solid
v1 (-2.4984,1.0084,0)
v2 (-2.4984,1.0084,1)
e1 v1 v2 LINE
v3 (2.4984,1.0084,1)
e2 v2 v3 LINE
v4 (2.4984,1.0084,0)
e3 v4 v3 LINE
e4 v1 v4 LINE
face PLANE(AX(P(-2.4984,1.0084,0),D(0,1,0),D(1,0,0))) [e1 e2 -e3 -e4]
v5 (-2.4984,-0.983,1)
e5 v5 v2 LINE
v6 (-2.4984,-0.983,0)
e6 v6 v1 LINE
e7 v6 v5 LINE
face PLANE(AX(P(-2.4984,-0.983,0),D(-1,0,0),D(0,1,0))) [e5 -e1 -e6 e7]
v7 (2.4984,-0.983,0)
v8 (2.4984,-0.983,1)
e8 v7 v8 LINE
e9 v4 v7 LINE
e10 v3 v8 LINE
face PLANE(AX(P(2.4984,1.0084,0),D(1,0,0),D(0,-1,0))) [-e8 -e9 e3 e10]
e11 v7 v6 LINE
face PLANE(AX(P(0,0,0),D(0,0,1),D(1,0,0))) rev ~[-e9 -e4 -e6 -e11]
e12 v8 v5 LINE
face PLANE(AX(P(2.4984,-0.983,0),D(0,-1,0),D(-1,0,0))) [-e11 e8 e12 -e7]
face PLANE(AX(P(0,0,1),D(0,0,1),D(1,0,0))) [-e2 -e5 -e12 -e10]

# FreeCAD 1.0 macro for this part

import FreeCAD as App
import Part
import Sketcher
from FreeCAD import Vector
Q = App.Units.Quantity


def add_polygon(sketch, points):
    """Adds a closed chain of lines whose ends are joined by coincident constraints."""
    first, n = sketch.GeometryCount, len(points)
    for a, b in zip(points, points[1:] + points[:1]):
        sketch.addGeometry(Part.LineSegment(App.Vector(*a, 0), App.Vector(*b, 0)), False)
    for i in range(n):
        sketch.addConstraint(Sketcher.Constraint("Coincident", first + i, 2, first + (i + 1) % n, 1))

doc = App.newDocument("Part")
body = doc.addObject("PartDesign::Body", "Body")

sketch1 = body.newObject("Sketcher::SketchObject", "Sketch")
sketch1.AttachmentSupport = (doc.getObject("XY_Plane"), [""])
sketch1.MapMode = "FlatFace"
add_polygon(sketch1, [(2.5, 1), (-2.5, 1), (-2.5, -1), (2.5, -1)])
sketch1.addConstraint([
    Sketcher.Constraint("Horizontal", 0),
    Sketcher.Constraint("Vertical", 1),
    Sketcher.Constraint("Horizontal", 2),
    Sketcher.Constraint("Vertical", 3),
    Sketcher.Constraint("DistanceX", 0, 2, 0, 1, Q("4.9968 mm")),
    Sketcher.Constraint("DistanceY", 1, 2, 1, 1, Q("1.9914 mm")),
    Sketcher.Constraint("DistanceY", 1, 2, -1, 1, Q("0.983 mm")),
    Sketcher.Constraint("DistanceX", 0, 2, -1, 1, Q("2.4984 mm")),
])
pad1 = body.newObject("PartDesign::Pad", "Pad")
pad1.Profile = sketch1
pad1.Length = 1

doc.recompute()
